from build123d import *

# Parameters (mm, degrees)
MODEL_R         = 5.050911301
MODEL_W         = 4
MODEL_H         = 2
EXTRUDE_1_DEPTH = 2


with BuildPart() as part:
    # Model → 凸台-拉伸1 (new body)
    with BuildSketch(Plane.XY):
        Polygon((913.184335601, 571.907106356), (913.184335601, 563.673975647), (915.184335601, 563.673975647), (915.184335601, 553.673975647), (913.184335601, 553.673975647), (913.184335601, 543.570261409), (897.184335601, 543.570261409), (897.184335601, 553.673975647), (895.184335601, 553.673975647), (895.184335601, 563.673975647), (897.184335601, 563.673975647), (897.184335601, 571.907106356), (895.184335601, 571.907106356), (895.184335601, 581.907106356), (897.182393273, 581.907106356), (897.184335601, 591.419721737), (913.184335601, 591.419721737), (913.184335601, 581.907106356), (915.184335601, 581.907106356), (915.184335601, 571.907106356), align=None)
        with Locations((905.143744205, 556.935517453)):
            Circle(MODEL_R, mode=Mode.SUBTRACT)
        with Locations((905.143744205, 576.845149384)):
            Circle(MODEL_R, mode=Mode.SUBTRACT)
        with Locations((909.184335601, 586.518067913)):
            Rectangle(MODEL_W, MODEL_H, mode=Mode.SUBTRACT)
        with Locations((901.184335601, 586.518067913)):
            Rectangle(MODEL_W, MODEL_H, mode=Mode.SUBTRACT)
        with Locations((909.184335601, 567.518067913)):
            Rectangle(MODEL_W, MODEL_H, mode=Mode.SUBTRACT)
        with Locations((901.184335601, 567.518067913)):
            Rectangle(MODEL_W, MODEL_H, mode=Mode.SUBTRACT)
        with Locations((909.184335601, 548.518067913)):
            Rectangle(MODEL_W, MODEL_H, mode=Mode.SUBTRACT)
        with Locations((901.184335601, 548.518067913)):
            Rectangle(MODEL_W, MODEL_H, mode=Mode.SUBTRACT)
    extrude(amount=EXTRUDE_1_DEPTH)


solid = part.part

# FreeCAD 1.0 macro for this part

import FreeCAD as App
import Part
import Sketcher

V = App.Vector


def add_polygon(sketch, points):
    """Adds a closed chain of lines whose ends are joined by coincident constraints."""
    first, n = sketch.GeometryCount, len(points)
    for a, b in zip(points, points[1:] + points[:1]):
        sketch.addGeometry(Part.LineSegment(App.Vector(*a, 0), App.Vector(*b, 0)), False)
    for i in range(n):
        sketch.addConstraint(Sketcher.Constraint("Coincident", first + i, 2, first + (i + 1) % n, 1))

doc = App.newDocument("Part")
body = doc.addObject("PartDesign::Body", "Body")

sketch1 = body.newObject("Sketcher::SketchObject", "Sketch")
sketch1.AttachmentSupport = (doc.getObject("XY_Plane"), [""])
sketch1.MapMode = "FlatFace"
add_polygon(sketch1, [(913.184336, 563.673976), (913.184336, 571.907106), (915.184336, 571.907106), (915.184336, 581.907106), (913.184336, 581.907106), (913.184336, 591.419722), (897.184336, 591.419722), (897.182393, 581.907106), (895.184336, 581.907106), (895.184336, 571.907106), (897.184336, 571.907106), (897.184336, 563.673976), (895.184336, 563.673976), (895.184336, 553.673976), (897.184336, 553.673976), (897.184336, 543.570261), (913.184336, 543.570261), (913.184336, 553.673976), (915.184336, 553.673976), (915.184336, 563.673976)])
add_polygon(sketch1, [(907.184336, 547.518068), (907.184336, 549.518068), (911.184336, 549.518068), (911.184336, 547.518068)])
sketch1.addGeometry(Part.Circle(V(905.143744, 556.935517, 0), V(0, 0, 1), 5.050911), False)
add_polygon(sketch1, [(899.184336, 547.518068), (899.184336, 549.518068), (903.184336, 549.518068), (903.184336, 547.518068)])
add_polygon(sketch1, [(907.184336, 566.518068), (907.184336, 568.518068), (911.184336, 568.518068), (911.184336, 566.518068)])
add_polygon(sketch1, [(907.184336, 585.518068), (907.184336, 587.518068), (911.184336, 587.518068), (911.184336, 585.518068)])
sketch1.addGeometry(Part.Circle(V(905.143744, 576.845149, 0), V(0, 0, 1), 5.050911), False)
add_polygon(sketch1, [(899.184336, 566.518068), (899.184336, 568.518068), (903.184336, 568.518068), (903.184336, 566.518068)])
add_polygon(sketch1, [(899.184336, 585.518068), (899.184336, 587.518068), (903.184336, 587.518068), (903.184336, 585.518068)])
sketch1.addConstraint(Sketcher.Constraint("Vertical", 0))
sketch1.addConstraint(Sketcher.Constraint("Horizontal", 1))
sketch1.addConstraint(Sketcher.Constraint("Vertical", 2))
sketch1.addConstraint(Sketcher.Constraint("Horizontal", 3))
sketch1.addConstraint(Sketcher.Constraint("Vertical", 4))
sketch1.addConstraint(Sketcher.Constraint("Horizontal", 5))
sketch1.addConstraint(Sketcher.Constraint("Horizontal", 7))
sketch1.addConstraint(Sketcher.Constraint("Vertical", 8))
sketch1.addConstraint(Sketcher.Constraint("Horizontal", 9))
sketch1.addConstraint(Sketcher.Constraint("Vertical", 10))
sketch1.addConstraint(Sketcher.Constraint("Horizontal", 11))
sketch1.addConstraint(Sketcher.Constraint("Vertical", 12))
sketch1.addConstraint(Sketcher.Constraint("Horizontal", 13))
sketch1.addConstraint(Sketcher.Constraint("Vertical", 14))
sketch1.addConstraint(Sketcher.Constraint("Horizontal", 15))
sketch1.addConstraint(Sketcher.Constraint("Vertical", 16))
sketch1.addConstraint(Sketcher.Constraint("Horizontal", 17))
sketch1.addConstraint(Sketcher.Constraint("Vertical", 18))
sketch1.addConstraint(Sketcher.Constraint("Horizontal", 19))
sketch1.addConstraint(Sketcher.Constraint("Vertical", 20))
sketch1.addConstraint(Sketcher.Constraint("Horizontal", 21))
sketch1.addConstraint(Sketcher.Constraint("Vertical", 22))
sketch1.addConstraint(Sketcher.Constraint("Horizontal", 23))
sketch1.addConstraint(Sketcher.Constraint("Vertical", 25))
sketch1.addConstraint(Sketcher.Constraint("Horizontal", 26))
sketch1.addConstraint(Sketcher.Constraint("Vertical", 27))
sketch1.addConstraint(Sketcher.Constraint("Horizontal", 28))
sketch1.addConstraint(Sketcher.Constraint("Vertical", 29))
sketch1.addConstraint(Sketcher.Constraint("Horizontal", 30))
sketch1.addConstraint(Sketcher.Constraint("Vertical", 31))
sketch1.addConstraint(Sketcher.Constraint("Horizontal", 32))
sketch1.addConstraint(Sketcher.Constraint("Vertical", 33))
sketch1.addConstraint(Sketcher.Constraint("Horizontal", 34))
sketch1.addConstraint(Sketcher.Constraint("Vertical", 35))
sketch1.addConstraint(Sketcher.Constraint("Horizontal", 36))
sketch1.addConstraint(Sketcher.Constraint("Vertical", 38))
sketch1.addConstraint(Sketcher.Constraint("Horizontal", 39))
sketch1.addConstraint(Sketcher.Constraint("Vertical", 40))
sketch1.addConstraint(Sketcher.Constraint("Horizontal", 41))
sketch1.addConstraint(Sketcher.Constraint("Vertical", 42))
sketch1.addConstraint(Sketcher.Constraint("Horizontal", 43))
sketch1.addConstraint(Sketcher.Constraint("Vertical", 44))
sketch1.addConstraint(Sketcher.Constraint("Horizontal", 45))
sketch1.addConstraint(Sketcher.Constraint("Equal", 24, 37))
sketch1.addConstraint(Sketcher.Constraint("Horizontal", 3, 2, 6, 2))
sketch1.addConstraint(Sketcher.Constraint("Horizontal", 1, 2, 8, 2))
sketch1.addConstraint(Sketcher.Constraint("Horizontal", 13, 2, 16, 2))
sketch1.addConstraint(Sketcher.Constraint("Horizontal", 11, 2, 18, 2))
sketch1.addConstraint(Sketcher.Constraint("Horizontal", 21, 2, 25, 2))
sketch1.addConstraint(Sketcher.Constraint("Horizontal", 23, 2, 27, 2))
sketch1.addConstraint(Sketcher.Constraint("Horizontal", 30, 2, 38, 2))
sketch1.addConstraint(Sketcher.Constraint("Horizontal", 32, 2, 40, 2))
sketch1.addConstraint(Sketcher.Constraint("Horizontal", 34, 2, 42, 2))
sketch1.addConstraint(Sketcher.Constraint("Horizontal", 36, 2, 44, 2))
sketch1.addConstraint(Sketcher.Constraint("Vertical", 24, 3, 37, 3))
sketch1.addConstraint(Sketcher.Constraint("Vertical", 0, 2, 3, 2))
sketch1.addConstraint(Sketcher.Constraint("Vertical", 5, 2, 9, 2))
sketch1.addConstraint(Sketcher.Constraint("Vertical", 8, 2, 11, 2))
sketch1.addConstraint(Sketcher.Constraint("Vertical", 10, 2, 13, 2))
sketch1.addConstraint(Sketcher.Constraint("Vertical", 4, 2, 15, 2))
sketch1.addConstraint(Sketcher.Constraint("Vertical", 2, 2, 17, 2))
sketch1.addConstraint(Sketcher.Constraint("Vertical", 23, 2, 29, 2))
sketch1.addConstraint(Sketcher.Constraint("Vertical", 22, 2, 30, 2))
sketch1.addConstraint(Sketcher.Constraint("Vertical", 32, 2, 33, 2))
sketch1.addConstraint(Sketcher.Constraint("Vertical", 31, 2, 34, 2))
sketch1.addConstraint(Sketcher.Constraint("Vertical", 28, 2, 38, 2))
sketch1.addConstraint(Sketcher.Constraint("Vertical", 27, 2, 39, 2))
sketch1.addConstraint(Sketcher.Constraint("Vertical", 41, 2, 42, 2))
sketch1.addConstraint(Sketcher.Constraint("Vertical", 40, 2, 43, 2))
sketch1.addConstraint(Sketcher.Constraint("Equal", 3, 9))
sketch1.addConstraint(Sketcher.Constraint("Equal", 23, 26))
sketch1.addConstraint(Sketcher.Constraint("Equal", 8, 12))
sketch1.addConstraint(Sketcher.Constraint("Equal", 19, 20))
sketch1.addConstraint(Sketcher.Constraint("Equal", 27, 29))
sketch1.addConstraint(Sketcher.Constraint("Equal", 31, 33))
sketch1.addConstraint(Sketcher.Constraint("DistanceX", 1, 1, 1, 2, 2.0))
sketch1.addConstraint(Sketcher.Constraint("DistanceX", 5, 2, 5, 1, 16.0))
sketch1.addConstraint(Sketcher.Constraint("DistanceX", 21, 1, 21, 2, 4.0))
sketch1.addConstraint(Sketcher.Constraint("DistanceY", 2, 1, 2, 2, 10.0))
sketch1.addConstraint(Sketcher.Constraint("DistanceX", 20, 2, 16, 2, 6.0))
sketch1.addConstraint(Sketcher.Constraint("DistanceX", 13, 2, 25, 2, 2.0))
sketch1.addConstraint(Sketcher.Constraint("Diameter", 24, 10.101823))
sketch1.addConstraint(Sketcher.Constraint("DistanceY", 0, 1, 0, 2, 8.233131))
sketch1.addConstraint(Sketcher.Constraint("DistanceX", 7, 2, 7, 1, 1.998058))
sketch1.addConstraint(Sketcher.Constraint("DistanceY", 4, 1, 4, 2, 9.512615))
sketch1.addConstraint(Sketcher.Constraint("DistanceY", 14, 2, 14, 1, 10.103714))
sketch1.addConstraint(Sketcher.Constraint("DistanceY", -1, 1, 37, 3, 576.845149))
sketch1.addConstraint(Sketcher.Constraint("DistanceY", -1, 1, 4, 2, 591.419722))
sketch1.addConstraint(Sketcher.Constraint("DistanceY", 24, 3, 37, 3, 19.909632))
sketch1.addConstraint(Sketcher.Constraint("DistanceX", 37, 3, 0, 2, 8.040591))
sketch1.addConstraint(Sketcher.Constraint("DistanceY", 20, 2, 24, 3, 7.41745))
sketch1.addConstraint(Sketcher.Constraint("DistanceY", 29, 2, 0, 2, 3.389038))
sketch1.addConstraint(Sketcher.Constraint("DistanceY", 3, 2, 33, 2, 5.610962))
sketch1.addConstraint(Sketcher.Constraint("DistanceX", -1, 1, 24, 3, 905.143744))
pad1 = body.newObject("PartDesign::Pad", "Pad")
pad1.Profile = sketch1
pad1.Length = 2

doc.recompute()
